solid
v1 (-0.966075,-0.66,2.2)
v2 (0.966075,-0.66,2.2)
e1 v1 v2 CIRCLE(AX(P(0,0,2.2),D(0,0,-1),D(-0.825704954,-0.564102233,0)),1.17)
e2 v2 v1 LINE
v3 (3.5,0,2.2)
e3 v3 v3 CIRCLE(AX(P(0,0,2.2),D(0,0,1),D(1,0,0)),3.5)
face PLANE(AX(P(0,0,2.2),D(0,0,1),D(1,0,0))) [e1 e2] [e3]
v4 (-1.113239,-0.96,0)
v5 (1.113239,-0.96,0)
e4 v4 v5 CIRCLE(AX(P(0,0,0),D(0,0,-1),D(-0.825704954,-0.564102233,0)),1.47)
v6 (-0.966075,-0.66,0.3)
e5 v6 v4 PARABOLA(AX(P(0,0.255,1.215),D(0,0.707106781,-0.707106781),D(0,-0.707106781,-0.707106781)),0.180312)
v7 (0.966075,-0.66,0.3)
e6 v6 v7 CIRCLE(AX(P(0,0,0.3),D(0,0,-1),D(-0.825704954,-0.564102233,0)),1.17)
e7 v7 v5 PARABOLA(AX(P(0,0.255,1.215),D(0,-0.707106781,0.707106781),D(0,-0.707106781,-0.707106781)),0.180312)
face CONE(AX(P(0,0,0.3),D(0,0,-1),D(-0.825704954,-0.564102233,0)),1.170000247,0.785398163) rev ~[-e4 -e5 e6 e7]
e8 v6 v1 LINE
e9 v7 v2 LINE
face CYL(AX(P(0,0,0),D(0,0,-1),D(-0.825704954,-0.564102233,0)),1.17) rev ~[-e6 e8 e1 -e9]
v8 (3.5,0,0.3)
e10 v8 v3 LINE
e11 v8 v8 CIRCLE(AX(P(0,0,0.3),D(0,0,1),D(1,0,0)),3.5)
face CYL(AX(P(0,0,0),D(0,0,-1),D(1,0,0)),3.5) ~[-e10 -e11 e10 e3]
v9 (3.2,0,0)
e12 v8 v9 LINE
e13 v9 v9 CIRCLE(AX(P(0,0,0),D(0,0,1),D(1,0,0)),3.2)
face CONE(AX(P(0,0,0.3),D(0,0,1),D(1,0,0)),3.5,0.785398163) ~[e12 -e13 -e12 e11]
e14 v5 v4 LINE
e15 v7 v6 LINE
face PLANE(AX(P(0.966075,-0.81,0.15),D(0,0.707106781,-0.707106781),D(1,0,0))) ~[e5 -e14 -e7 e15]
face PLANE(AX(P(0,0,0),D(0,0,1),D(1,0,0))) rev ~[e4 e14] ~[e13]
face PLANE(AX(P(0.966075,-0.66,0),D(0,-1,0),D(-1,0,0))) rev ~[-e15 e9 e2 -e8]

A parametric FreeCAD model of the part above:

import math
import FreeCAD as App
import Part
import Sketcher
from FreeCAD import Vector


def edges_at(feature, points):
    """Names of the edges that pass closest to the given points."""
    edges = feature.Shape.Edges
    near = lambda p: min(range(len(edges)), key=lambda i: edges[i].distToShape(Part.Vertex(*p))[0])
    return sorted({f"Edge{near(p) + 1}" for p in points})

doc = App.newDocument("Part")
params = doc.addObject("Spreadsheet::Sheet", "Params")
for row, (alias, value) in enumerate([
    ("sketch1_diameter", "7 mm"),
    ("sketch1_radius", "1.17 mm"),
    ("pad1_length", "2.2 mm"),
    ("chamfer_size", "0.3 mm"),
], start=1):
    params.set(f"A{row}", alias)
    params.set(f"B{row}", "=" + value)
    params.setAlias(f"B{row}", alias)

body = doc.addObject("PartDesign::Body", "Body")

sketch1 = body.newObject("Sketcher::SketchObject", "Sketch")
sketch1.AttachmentSupport = (doc.getObject("XY_Plane"), [""])
sketch1.MapMode = "FlatFace"
sketch1.addGeometry(Part.Circle(Vector(0, 0, 0), Vector(0, 0, 1), 3.5), False)
sketch1.addGeometry(Part.LineSegment(Vector(0.966075, -0.66, 0), Vector(-0.966075, -0.66, 0)), False)
sketch1.addGeometry(Part.ArcOfCircle(Part.Circle(Vector(0, 0, 0), Vector(0, 0, 1), 1.17), math.radians(-34.339972), math.radians(214.339972)), False)
sketch1.addConstraint(Sketcher.Constraint("Coincident", 1, 1, 2, 1))
sketch1.addConstraint(Sketcher.Constraint("Coincident", 2, 2, 1, 2))
sketch1.addConstraint(Sketcher.Constraint("Horizontal", 1))
sketch1.addConstraint(Sketcher.Constraint("Coincident", 0, 3, -1, 1))
sketch1.addConstraint(Sketcher.Constraint("Coincident", 2, 3, -1, 1))
sketch1.addConstraint(Sketcher.Constraint("Diameter", 0, 7.0))
sketch1.addConstraint(Sketcher.Constraint("Radius", 2, 1.17))
sketch1.addConstraint(Sketcher.Constraint("DistanceY", 1, 1, -1, 1, 0.66))
sketch1.setExpression("Constraints[5]", "Params.sketch1_diameter")
sketch1.setExpression("Constraints[6]", "Params.sketch1_radius")
pad1 = body.newObject("PartDesign::Pad", "Pad")
pad1.Profile = sketch1
pad1.setExpression("Length", "Params.pad1_length")
doc.recompute()

chamfer = body.newObject("PartDesign::Chamfer", "Chamfer")
chamfer.Base = (pad1, edges_at(pad1, [(-3.5, 0, 0), (0, 1.17, 0), (0, -0.66, 0)]))
chamfer.setExpression("Size", "Params.chamfer_size")

doc.recompute()
